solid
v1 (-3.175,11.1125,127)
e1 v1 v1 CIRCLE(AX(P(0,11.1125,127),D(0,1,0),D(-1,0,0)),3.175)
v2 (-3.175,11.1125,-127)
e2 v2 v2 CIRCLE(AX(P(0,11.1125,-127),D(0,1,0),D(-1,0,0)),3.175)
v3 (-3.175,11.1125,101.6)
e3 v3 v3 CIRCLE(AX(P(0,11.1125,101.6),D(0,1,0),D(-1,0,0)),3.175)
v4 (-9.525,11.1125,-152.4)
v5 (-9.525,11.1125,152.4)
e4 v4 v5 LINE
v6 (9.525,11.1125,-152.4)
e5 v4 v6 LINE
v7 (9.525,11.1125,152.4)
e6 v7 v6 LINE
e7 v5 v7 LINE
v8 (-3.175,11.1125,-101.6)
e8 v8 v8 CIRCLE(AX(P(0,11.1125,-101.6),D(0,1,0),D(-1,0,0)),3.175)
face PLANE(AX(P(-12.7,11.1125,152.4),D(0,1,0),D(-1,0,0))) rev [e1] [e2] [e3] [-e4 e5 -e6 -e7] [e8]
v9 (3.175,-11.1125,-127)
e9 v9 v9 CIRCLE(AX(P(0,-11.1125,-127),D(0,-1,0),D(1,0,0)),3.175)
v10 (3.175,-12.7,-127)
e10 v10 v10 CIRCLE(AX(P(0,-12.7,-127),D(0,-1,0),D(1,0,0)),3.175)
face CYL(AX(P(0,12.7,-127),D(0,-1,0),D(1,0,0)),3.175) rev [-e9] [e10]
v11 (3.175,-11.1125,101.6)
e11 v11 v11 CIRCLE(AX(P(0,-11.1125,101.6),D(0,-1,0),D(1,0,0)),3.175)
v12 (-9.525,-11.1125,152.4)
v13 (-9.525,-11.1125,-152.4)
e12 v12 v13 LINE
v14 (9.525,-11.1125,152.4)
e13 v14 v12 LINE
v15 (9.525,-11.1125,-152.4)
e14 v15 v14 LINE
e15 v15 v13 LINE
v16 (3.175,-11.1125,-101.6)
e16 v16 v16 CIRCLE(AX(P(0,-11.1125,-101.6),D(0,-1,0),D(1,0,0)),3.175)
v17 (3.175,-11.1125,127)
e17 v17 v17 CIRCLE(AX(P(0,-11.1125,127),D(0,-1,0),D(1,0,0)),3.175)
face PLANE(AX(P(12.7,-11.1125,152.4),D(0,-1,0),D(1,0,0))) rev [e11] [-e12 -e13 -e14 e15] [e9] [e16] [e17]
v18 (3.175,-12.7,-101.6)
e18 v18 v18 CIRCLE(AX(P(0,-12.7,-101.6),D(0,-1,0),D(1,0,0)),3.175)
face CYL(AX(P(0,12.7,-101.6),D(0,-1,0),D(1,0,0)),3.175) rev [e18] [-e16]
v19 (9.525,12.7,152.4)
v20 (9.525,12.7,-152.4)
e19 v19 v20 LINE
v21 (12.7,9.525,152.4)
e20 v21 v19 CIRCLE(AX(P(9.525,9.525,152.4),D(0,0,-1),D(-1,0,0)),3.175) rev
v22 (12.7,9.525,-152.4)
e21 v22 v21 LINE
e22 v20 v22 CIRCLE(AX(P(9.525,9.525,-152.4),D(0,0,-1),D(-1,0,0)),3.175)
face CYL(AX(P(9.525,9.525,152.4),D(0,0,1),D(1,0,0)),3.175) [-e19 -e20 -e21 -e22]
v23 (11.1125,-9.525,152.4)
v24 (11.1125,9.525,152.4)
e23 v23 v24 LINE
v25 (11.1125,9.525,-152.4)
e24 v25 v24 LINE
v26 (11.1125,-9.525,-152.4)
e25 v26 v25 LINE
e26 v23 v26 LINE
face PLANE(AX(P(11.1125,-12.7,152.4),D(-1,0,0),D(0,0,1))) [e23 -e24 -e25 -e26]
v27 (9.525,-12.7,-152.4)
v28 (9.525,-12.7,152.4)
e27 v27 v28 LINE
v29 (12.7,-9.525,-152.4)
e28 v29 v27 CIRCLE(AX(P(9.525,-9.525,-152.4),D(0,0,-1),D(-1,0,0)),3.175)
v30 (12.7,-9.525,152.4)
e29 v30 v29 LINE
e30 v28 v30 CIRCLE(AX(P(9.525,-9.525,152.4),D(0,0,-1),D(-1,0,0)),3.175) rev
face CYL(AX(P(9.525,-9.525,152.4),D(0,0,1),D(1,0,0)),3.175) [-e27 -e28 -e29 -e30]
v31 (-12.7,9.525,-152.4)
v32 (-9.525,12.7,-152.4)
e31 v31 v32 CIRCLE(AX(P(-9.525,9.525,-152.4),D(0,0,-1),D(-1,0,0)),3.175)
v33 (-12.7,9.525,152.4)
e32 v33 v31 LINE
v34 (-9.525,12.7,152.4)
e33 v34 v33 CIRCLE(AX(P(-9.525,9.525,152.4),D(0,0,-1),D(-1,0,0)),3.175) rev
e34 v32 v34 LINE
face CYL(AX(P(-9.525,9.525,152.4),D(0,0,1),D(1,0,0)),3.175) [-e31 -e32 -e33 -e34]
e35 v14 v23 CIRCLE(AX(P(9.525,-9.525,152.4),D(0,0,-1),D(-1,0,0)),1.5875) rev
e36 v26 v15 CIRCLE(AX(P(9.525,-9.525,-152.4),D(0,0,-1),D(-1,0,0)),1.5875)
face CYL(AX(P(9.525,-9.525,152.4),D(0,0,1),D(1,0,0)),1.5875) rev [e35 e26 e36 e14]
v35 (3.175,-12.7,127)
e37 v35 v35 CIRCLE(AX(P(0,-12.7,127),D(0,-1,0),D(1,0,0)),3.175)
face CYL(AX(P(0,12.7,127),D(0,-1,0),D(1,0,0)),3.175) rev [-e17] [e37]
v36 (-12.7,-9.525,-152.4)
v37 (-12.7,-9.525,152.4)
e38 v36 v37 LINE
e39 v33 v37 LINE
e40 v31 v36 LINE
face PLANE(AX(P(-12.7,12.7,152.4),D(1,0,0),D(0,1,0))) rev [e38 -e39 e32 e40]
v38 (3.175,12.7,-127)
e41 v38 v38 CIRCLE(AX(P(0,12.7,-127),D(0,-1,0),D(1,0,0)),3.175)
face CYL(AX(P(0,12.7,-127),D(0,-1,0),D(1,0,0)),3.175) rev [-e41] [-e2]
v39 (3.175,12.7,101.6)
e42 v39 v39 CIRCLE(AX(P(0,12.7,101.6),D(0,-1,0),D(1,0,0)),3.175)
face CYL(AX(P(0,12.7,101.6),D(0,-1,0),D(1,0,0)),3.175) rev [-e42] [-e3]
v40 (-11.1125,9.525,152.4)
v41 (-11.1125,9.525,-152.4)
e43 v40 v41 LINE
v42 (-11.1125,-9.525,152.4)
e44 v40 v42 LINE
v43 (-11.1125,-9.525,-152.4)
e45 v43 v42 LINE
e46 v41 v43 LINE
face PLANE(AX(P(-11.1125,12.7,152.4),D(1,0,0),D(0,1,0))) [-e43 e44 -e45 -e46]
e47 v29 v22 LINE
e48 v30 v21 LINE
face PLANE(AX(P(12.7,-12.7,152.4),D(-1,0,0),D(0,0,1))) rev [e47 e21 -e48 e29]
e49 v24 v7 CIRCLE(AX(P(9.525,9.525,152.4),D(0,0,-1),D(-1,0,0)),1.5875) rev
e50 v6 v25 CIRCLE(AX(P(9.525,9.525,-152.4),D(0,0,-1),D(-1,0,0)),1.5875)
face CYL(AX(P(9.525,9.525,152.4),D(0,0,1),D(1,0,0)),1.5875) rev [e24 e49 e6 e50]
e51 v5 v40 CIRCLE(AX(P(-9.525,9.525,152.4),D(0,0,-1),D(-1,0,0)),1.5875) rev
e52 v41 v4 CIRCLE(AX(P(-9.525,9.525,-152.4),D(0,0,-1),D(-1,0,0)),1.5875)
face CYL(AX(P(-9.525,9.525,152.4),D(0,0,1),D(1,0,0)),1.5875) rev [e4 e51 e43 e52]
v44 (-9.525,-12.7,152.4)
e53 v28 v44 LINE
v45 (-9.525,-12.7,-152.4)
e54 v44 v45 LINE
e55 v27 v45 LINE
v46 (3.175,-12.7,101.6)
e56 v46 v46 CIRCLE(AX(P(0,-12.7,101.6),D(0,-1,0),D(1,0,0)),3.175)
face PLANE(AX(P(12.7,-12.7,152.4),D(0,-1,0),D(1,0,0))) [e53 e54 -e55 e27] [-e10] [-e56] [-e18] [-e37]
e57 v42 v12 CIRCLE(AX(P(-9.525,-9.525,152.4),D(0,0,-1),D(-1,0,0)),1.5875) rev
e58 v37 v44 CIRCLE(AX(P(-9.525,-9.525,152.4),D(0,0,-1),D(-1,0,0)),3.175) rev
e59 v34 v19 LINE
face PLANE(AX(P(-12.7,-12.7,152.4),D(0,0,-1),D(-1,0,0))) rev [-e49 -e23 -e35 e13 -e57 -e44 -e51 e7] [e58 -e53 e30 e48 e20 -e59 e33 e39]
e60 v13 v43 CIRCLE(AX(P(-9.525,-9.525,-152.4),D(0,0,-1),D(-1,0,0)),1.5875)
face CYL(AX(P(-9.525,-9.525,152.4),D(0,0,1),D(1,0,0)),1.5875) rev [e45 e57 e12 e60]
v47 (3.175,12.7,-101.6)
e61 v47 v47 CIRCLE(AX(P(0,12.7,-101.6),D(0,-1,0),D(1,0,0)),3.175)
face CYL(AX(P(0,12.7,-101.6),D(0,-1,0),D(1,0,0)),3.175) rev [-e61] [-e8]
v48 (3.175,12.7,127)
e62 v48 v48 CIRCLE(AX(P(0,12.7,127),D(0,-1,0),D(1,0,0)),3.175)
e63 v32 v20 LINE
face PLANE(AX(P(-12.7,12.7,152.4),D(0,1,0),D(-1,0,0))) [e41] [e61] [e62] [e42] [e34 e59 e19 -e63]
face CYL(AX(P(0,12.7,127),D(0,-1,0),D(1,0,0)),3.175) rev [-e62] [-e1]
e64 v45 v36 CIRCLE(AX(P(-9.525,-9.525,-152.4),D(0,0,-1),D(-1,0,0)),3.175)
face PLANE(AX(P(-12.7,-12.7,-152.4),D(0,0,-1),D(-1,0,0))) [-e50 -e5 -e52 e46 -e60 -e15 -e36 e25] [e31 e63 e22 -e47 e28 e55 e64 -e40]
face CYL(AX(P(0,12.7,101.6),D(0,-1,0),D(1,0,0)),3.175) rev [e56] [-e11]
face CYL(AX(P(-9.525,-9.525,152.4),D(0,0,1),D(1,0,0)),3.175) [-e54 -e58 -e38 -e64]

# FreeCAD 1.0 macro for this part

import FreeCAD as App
import Part
import Sketcher
Q = App.Units.Quantity


def edges_at(feature, points):
    """Names of the edges that pass closest to the given points."""
    edges = feature.Shape.Edges
    near = lambda p: min(range(len(edges)), key=lambda i: edges[i].distToShape(Part.Vertex(*p))[0])
    return sorted({f"Edge{near(p) + 1}" for p in points})


def faces_at(feature, points):
    """Names of the faces that lie closest to the given points."""
    faces = feature.Shape.Faces
    near = lambda p: min(range(len(faces)), key=lambda i: faces[i].distToShape(Part.Vertex(*p))[0])
    return sorted({f"Face{near(p) + 1}" for p in points})

doc = App.newDocument("Part")
body = doc.addObject("PartDesign::Body", "Body")

sketch1 = doc.addObject("Sketcher::SketchObject", "Sketch")
body.addObject(sketch1)
sketch1.AttachmentSupport = (doc.XY_Plane, [""])
sketch1.MapMode = "FlatFace"
sketch1.addGeometry(Part.LineSegment(App.Vector(-12.7, 12.7, 0), App.Vector(-12.7, -12.7, 0)), False)
sketch1.addGeometry(Part.LineSegment(App.Vector(-12.7, -12.7, 0), App.Vector(12.7, -12.7, 0)), False)
sketch1.addGeometry(Part.LineSegment(App.Vector(12.7, -12.7, 0), App.Vector(12.7, 12.7, 0)), False)
sketch1.addGeometry(Part.LineSegment(App.Vector(12.7, 12.7, 0), App.Vector(-12.7, 12.7, 0)), False)
sketch1.addConstraint(Sketcher.Constraint("Coincident", 0, 2, 1, 1))
sketch1.addConstraint(Sketcher.Constraint("Coincident", 1, 2, 2, 1))
sketch1.addConstraint(Sketcher.Constraint("Coincident", 2, 2, 3, 1))
sketch1.addConstraint(Sketcher.Constraint("Coincident", 3, 2, 0, 1))
sketch1.addConstraint(Sketcher.Constraint("Vertical", 0))
sketch1.addConstraint(Sketcher.Constraint("Horizontal", 1))
sketch1.addConstraint(Sketcher.Constraint("Vertical", 2))
sketch1.addConstraint(Sketcher.Constraint("Horizontal", 3))
sketch1.addConstraint(Sketcher.Constraint("Symmetric", 0, 2, 2, 2, -1, 1))
sketch1.addConstraint(Sketcher.Constraint("Equal", 3, 0))
sketch1.addConstraint(Sketcher.Constraint("DistanceX", 1, 1, 1, 2, Q("1 in")))
pad1 = doc.addObject("PartDesign::Pad", "Pad")
body.addObject(pad1)
pad1.Profile = sketch1
pad1.Length = Q("12 in")
pad1.Midplane = True
doc.recompute()

fillet = doc.addObject("PartDesign::Fillet", "Fillet")
body.addObject(fillet)
fillet.Base = (pad1, edges_at(pad1, [
    (-12.7, 12.7, 0),
    (12.7, 12.7, 0),
    (12.7, -12.7, 0),
    (-12.7, -12.7, 0),
]))
fillet.Radius = Q("0.125 in")
doc.recompute()

thickness = doc.addObject("PartDesign::Thickness", "Thickness")
body.addObject(thickness)
thickness.Base = (fillet, faces_at(fillet, [(0, 0, 152.4), (0, 0, -152.4)]))
thickness.Value = Q("0.0625 in")
thickness.Reversed = True
thickness.Join = "Intersection"

sketch2 = doc.addObject("Sketcher::SketchObject", "Sketch001")
body.addObject(sketch2)
sketch2.AttachmentSupport = (doc.XZ_Plane, [""])
sketch2.MapMode = "FlatFace"
sketch2.AttachmentOffset = App.Placement(App.Vector(0, 0, 0.5 * 25.4), App.Rotation())
sketch2.addGeometry(Part.Circle(App.Vector(0, 127, 0), App.Vector(0, 0, 1), 3.175), False)
sketch2.addGeometry(Part.Circle(App.Vector(0, 101.6, 0), App.Vector(0, 0, 1), 3.175), False)
sketch2.addGeometry(Part.Circle(App.Vector(0, -127, 0), App.Vector(0, 0, 1), 3.175), False)
sketch2.addGeometry(Part.Circle(App.Vector(0, -101.6, 0), App.Vector(0, 0, 1), 3.175), False)
sketch2.addConstraint(Sketcher.Constraint("Equal", 0, 1))
sketch2.addConstraint(Sketcher.Constraint("Equal", 1, 2))
sketch2.addConstraint(Sketcher.Constraint("Equal", 2, 3))
sketch2.addConstraint(Sketcher.Constraint("Symmetric", 0, 3, 2, 3, -1, 1))
sketch2.addConstraint(Sketcher.Constraint("Symmetric", 1, 3, 3, 3, -1, 1))
sketch2.addConstraint(Sketcher.Constraint("PointOnObject", 0, 3, -2))
sketch2.addConstraint(Sketcher.Constraint("PointOnObject", 1, 3, -2))
sketch2.addConstraint(Sketcher.Constraint("Diameter", 0, Q("0.25 in")))
sketch2.addConstraint(Sketcher.Constraint("DistanceY", -1, 1, 0, 3, Q("5 in")))
sketch2.addConstraint(Sketcher.Constraint("DistanceY", -1, 1, 1, 3, Q("4 in")))
pocket1 = doc.addObject("PartDesign::Pocket", "Pocket")
body.addObject(pocket1)
pocket1.Profile = sketch2
pocket1.Type = "ThroughAll"

doc.recompute()
